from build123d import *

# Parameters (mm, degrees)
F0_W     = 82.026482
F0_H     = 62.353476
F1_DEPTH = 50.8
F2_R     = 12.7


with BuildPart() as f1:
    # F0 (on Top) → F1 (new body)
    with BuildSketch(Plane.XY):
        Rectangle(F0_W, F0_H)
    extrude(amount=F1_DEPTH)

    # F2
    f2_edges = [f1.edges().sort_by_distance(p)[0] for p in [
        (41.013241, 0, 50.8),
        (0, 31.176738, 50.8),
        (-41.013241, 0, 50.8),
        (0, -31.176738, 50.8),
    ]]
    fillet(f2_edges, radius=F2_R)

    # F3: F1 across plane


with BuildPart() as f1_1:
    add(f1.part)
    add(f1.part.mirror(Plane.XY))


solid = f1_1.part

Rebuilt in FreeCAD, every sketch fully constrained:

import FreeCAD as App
import Part
import Sketcher
Q = App.Units.Quantity


def edges_at(feature, points):
    """Names of the edges that pass closest to the given points."""
    edges = feature.Shape.Edges
    near = lambda p: min(range(len(edges)), key=lambda i: edges[i].distToShape(Part.Vertex(*p))[0])
    return sorted({f"Edge{near(p) + 1}" for p in points})


def add_polygon(sketch, points):
    """Adds a closed chain of lines whose ends are joined by coincident constraints."""
    first, n = sketch.GeometryCount, len(points)
    for a, b in zip(points, points[1:] + points[:1]):
        sketch.addGeometry(Part.LineSegment(App.Vector(*a, 0), App.Vector(*b, 0)), False)
    for i in range(n):
        sketch.addConstraint(Sketcher.Constraint("Coincident", first + i, 2, first + (i + 1) % n, 1))

doc = App.newDocument("Part")
body = doc.addObject("PartDesign::Body", "Body")

sketch1 = body.newObject("Sketcher::SketchObject", "Sketch")
sketch1.AttachmentSupport = (doc.getObject("XY_Plane"), [""])
sketch1.MapMode = "FlatFace"
add_polygon(sketch1, [(-41.013241, 31.176738), (-41.013241, -31.176738), (41.013241, -31.176738), (41.013241, 31.176738)])
sketch1.addConstraint([
    Sketcher.Constraint("Vertical", 0),
    Sketcher.Constraint("Horizontal", 1),
    Sketcher.Constraint("Vertical", 2),
    Sketcher.Constraint("Horizontal", 3),
    Sketcher.Constraint("Symmetric", 0, 2, 2, 2, -1, 1),
    Sketcher.Constraint("DistanceX", 1, 1, 1, 2, 82.026482),
    Sketcher.Constraint("DistanceY", 0, 2, 0, 1, 62.353476),
])
pad1 = body.newObject("PartDesign::Pad", "Pad")
pad1.Profile = sketch1
pad1.Length = Q("2 in")
doc.recompute()

fillet = body.newObject("PartDesign::Fillet", "Fillet")
fillet.Base = (pad1, edges_at(pad1, [
    (41.013, 0, 50.8),
    (0, 31.177, 50.8),
    (-41.013, 0, 50.8),
    (0, -31.177, 50.8),
]))
fillet.Radius = Q("0.5 in")
body2 = doc.addObject("PartDesign::Body", "Body001")
doc.recompute()

body2.BaseFeature = body
doc.recompute()

mirroring = doc.addObject("Part::Mirroring", "Mirroring")
mirroring.Source = body
mirroring.Base = App.Vector(0, 0, 0)
mirroring.Normal = App.Vector(0, 0, 1)
body3 = doc.addObject("PartDesign::Body", "Body002")
body3.BaseFeature = mirroring
boolean = body2.newObject("PartDesign::Boolean", "Boolean")
boolean.Type = "Fuse"
boolean.addObjects([body3])
doc.recompute()
mirroring.Visibility = False

doc.recompute()
